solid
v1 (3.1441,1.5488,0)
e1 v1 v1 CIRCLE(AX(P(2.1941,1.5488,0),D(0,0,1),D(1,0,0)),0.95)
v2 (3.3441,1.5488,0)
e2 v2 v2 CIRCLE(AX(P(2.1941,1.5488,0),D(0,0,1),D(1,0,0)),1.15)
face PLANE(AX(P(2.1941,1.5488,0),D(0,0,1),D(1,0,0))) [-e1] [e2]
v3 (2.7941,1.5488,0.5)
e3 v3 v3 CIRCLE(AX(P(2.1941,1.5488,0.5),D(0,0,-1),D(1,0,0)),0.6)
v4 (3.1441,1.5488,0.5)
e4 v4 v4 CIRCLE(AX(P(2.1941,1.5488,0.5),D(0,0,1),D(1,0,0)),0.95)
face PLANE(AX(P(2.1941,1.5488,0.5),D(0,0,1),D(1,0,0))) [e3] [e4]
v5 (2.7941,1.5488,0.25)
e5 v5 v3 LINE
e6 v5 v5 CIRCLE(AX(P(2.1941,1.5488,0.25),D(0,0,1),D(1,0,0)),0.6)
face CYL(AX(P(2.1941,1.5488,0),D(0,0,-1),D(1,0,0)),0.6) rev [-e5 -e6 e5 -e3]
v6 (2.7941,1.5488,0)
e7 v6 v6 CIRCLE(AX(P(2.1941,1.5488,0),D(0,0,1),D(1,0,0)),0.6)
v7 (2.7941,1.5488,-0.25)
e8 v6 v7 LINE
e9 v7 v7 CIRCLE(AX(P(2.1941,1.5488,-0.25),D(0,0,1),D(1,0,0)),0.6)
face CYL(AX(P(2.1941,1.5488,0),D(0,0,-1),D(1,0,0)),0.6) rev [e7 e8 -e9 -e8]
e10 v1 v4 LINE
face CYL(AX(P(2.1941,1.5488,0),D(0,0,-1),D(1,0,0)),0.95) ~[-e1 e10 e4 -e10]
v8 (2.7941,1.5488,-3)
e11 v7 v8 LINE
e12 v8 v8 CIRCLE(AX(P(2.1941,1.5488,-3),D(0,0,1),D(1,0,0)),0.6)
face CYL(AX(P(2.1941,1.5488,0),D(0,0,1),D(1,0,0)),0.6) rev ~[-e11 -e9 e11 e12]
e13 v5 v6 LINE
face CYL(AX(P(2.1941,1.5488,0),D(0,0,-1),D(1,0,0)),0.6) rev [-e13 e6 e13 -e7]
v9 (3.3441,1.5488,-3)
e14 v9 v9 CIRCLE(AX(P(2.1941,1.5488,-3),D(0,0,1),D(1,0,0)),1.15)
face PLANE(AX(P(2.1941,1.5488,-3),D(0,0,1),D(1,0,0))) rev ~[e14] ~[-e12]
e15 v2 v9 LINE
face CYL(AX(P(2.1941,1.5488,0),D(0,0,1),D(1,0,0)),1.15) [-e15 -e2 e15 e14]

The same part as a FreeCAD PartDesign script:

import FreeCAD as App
import Part
import Sketcher

doc = App.newDocument("Part")
params = doc.addObject("Spreadsheet::Sheet", "Params")
for row, (alias, value) in enumerate([
    ("sketch1_diameter", "2.3 mm"),
    ("pad1_length", "3 mm"),
    ("sketch2_diameter", "1.9 mm"),
    ("pad2_length", "0.5 mm"),
    ("sketch3_diameter", "1.2 mm"),
    ("pocket1_length", "0.5 mm"),
    ("sketch4_diameter", "1.2 mm"),
], start=1):
    params.set(f"A{row}", alias)
    params.set(f"B{row}", "=" + value)
    params.setAlias(f"B{row}", alias)

body = doc.addObject("PartDesign::Body", "Body")

# Sketch on XY plane
sketch1 = body.newObject("Sketcher::SketchObject", "Sketch")
sketch1.AttachmentSupport = (doc.getObject("XY_Plane"), [""])
sketch1.MapMode = "FlatFace"
sketch1.addGeometry(Part.Circle(App.Vector(2.2, 1.5, 0), App.Vector(0, 0, 1), 1.1), False)
sketch1.addConstraint([
    Sketcher.Constraint("Diameter", 0, 2.3),
    Sketcher.Constraint("DistanceX", -1, 1, 0, 3, 2.194),
    Sketcher.Constraint("DistanceY", -1, 1, 0, 3, 1.5488),
])
sketch1.setExpression("Constraints[0]", "Params.sketch1_diameter")
pad1 = body.newObject("PartDesign::Pad", "Pad")
pad1.Profile = sketch1
pad1.setExpression("Length", "Params.pad1_length")
pad1.Reversed = True

# Sketch on XY plane
sketch2 = body.newObject("Sketcher::SketchObject", "Sketch001")
sketch2.AttachmentSupport = (doc.getObject("XY_Plane"), [""])
sketch2.MapMode = "FlatFace"
sketch2.addGeometry(Part.Circle(App.Vector(2.2, 1.5, 0), App.Vector(0, 0, 1), 0.9), False)
sketch2.addConstraint([
    Sketcher.Constraint("Diameter", 0, 1.9),
    Sketcher.Constraint("DistanceX", -1, 1, 0, 3, 2.194),
    Sketcher.Constraint("DistanceY", -1, 1, 0, 3, 1.5488),
])
sketch2.setExpression("Constraints[0]", "Params.sketch2_diameter")
pad2 = body.newObject("PartDesign::Pad", "Pad001")
pad2.Profile = sketch2
pad2.setExpression("Length", "Params.pad2_length")

# Sketch on XY plane
sketch3 = body.newObject("Sketcher::SketchObject", "Sketch002")
sketch3.AttachmentSupport = (doc.getObject("XY_Plane"), [""])
sketch3.MapMode = "FlatFace"
sketch3.addGeometry(Part.Circle(App.Vector(2.2, 1.5, 0), App.Vector(0, 0, 1), 0.6), False)
sketch3.addConstraint([
    Sketcher.Constraint("Diameter", 0, 1.2),
    Sketcher.Constraint("DistanceX", -1, 1, 0, 3, 2.194),
    Sketcher.Constraint("DistanceY", -1, 1, 0, 3, 1.5488),
])
sketch3.setExpression("Constraints[0]", "Params.sketch3_diameter")
pocket1 = body.newObject("PartDesign::Pocket", "Pocket")
pocket1.Profile = sketch3
pocket1.setExpression("Length", "Params.pocket1_length")
pocket1.Midplane = True

# Sketch on XY plane
sketch4 = body.newObject("Sketcher::SketchObject", "Sketch003")
sketch4.AttachmentSupport = (doc.getObject("XY_Plane"), [""])
sketch4.MapMode = "FlatFace"
sketch4.addGeometry(Part.Circle(App.Vector(2.2, 1.5, 0), App.Vector(0, 0, 1), 0.6), False)
sketch4.addConstraint([
    Sketcher.Constraint("Diameter", 0, 1.2),
    Sketcher.Constraint("DistanceX", -1, 1, 0, 3, 2.194),
    Sketcher.Constraint("DistanceY", -1, 1, 0, 3, 1.5488),
])
sketch4.setExpression("Constraints[0]", "Params.sketch4_diameter")
pocket2 = body.newObject("PartDesign::Pocket", "Pocket001")
pocket2.Profile = sketch4
pocket2.Type = "ThroughAll"
pocket2.Midplane = True

doc.recompute()
